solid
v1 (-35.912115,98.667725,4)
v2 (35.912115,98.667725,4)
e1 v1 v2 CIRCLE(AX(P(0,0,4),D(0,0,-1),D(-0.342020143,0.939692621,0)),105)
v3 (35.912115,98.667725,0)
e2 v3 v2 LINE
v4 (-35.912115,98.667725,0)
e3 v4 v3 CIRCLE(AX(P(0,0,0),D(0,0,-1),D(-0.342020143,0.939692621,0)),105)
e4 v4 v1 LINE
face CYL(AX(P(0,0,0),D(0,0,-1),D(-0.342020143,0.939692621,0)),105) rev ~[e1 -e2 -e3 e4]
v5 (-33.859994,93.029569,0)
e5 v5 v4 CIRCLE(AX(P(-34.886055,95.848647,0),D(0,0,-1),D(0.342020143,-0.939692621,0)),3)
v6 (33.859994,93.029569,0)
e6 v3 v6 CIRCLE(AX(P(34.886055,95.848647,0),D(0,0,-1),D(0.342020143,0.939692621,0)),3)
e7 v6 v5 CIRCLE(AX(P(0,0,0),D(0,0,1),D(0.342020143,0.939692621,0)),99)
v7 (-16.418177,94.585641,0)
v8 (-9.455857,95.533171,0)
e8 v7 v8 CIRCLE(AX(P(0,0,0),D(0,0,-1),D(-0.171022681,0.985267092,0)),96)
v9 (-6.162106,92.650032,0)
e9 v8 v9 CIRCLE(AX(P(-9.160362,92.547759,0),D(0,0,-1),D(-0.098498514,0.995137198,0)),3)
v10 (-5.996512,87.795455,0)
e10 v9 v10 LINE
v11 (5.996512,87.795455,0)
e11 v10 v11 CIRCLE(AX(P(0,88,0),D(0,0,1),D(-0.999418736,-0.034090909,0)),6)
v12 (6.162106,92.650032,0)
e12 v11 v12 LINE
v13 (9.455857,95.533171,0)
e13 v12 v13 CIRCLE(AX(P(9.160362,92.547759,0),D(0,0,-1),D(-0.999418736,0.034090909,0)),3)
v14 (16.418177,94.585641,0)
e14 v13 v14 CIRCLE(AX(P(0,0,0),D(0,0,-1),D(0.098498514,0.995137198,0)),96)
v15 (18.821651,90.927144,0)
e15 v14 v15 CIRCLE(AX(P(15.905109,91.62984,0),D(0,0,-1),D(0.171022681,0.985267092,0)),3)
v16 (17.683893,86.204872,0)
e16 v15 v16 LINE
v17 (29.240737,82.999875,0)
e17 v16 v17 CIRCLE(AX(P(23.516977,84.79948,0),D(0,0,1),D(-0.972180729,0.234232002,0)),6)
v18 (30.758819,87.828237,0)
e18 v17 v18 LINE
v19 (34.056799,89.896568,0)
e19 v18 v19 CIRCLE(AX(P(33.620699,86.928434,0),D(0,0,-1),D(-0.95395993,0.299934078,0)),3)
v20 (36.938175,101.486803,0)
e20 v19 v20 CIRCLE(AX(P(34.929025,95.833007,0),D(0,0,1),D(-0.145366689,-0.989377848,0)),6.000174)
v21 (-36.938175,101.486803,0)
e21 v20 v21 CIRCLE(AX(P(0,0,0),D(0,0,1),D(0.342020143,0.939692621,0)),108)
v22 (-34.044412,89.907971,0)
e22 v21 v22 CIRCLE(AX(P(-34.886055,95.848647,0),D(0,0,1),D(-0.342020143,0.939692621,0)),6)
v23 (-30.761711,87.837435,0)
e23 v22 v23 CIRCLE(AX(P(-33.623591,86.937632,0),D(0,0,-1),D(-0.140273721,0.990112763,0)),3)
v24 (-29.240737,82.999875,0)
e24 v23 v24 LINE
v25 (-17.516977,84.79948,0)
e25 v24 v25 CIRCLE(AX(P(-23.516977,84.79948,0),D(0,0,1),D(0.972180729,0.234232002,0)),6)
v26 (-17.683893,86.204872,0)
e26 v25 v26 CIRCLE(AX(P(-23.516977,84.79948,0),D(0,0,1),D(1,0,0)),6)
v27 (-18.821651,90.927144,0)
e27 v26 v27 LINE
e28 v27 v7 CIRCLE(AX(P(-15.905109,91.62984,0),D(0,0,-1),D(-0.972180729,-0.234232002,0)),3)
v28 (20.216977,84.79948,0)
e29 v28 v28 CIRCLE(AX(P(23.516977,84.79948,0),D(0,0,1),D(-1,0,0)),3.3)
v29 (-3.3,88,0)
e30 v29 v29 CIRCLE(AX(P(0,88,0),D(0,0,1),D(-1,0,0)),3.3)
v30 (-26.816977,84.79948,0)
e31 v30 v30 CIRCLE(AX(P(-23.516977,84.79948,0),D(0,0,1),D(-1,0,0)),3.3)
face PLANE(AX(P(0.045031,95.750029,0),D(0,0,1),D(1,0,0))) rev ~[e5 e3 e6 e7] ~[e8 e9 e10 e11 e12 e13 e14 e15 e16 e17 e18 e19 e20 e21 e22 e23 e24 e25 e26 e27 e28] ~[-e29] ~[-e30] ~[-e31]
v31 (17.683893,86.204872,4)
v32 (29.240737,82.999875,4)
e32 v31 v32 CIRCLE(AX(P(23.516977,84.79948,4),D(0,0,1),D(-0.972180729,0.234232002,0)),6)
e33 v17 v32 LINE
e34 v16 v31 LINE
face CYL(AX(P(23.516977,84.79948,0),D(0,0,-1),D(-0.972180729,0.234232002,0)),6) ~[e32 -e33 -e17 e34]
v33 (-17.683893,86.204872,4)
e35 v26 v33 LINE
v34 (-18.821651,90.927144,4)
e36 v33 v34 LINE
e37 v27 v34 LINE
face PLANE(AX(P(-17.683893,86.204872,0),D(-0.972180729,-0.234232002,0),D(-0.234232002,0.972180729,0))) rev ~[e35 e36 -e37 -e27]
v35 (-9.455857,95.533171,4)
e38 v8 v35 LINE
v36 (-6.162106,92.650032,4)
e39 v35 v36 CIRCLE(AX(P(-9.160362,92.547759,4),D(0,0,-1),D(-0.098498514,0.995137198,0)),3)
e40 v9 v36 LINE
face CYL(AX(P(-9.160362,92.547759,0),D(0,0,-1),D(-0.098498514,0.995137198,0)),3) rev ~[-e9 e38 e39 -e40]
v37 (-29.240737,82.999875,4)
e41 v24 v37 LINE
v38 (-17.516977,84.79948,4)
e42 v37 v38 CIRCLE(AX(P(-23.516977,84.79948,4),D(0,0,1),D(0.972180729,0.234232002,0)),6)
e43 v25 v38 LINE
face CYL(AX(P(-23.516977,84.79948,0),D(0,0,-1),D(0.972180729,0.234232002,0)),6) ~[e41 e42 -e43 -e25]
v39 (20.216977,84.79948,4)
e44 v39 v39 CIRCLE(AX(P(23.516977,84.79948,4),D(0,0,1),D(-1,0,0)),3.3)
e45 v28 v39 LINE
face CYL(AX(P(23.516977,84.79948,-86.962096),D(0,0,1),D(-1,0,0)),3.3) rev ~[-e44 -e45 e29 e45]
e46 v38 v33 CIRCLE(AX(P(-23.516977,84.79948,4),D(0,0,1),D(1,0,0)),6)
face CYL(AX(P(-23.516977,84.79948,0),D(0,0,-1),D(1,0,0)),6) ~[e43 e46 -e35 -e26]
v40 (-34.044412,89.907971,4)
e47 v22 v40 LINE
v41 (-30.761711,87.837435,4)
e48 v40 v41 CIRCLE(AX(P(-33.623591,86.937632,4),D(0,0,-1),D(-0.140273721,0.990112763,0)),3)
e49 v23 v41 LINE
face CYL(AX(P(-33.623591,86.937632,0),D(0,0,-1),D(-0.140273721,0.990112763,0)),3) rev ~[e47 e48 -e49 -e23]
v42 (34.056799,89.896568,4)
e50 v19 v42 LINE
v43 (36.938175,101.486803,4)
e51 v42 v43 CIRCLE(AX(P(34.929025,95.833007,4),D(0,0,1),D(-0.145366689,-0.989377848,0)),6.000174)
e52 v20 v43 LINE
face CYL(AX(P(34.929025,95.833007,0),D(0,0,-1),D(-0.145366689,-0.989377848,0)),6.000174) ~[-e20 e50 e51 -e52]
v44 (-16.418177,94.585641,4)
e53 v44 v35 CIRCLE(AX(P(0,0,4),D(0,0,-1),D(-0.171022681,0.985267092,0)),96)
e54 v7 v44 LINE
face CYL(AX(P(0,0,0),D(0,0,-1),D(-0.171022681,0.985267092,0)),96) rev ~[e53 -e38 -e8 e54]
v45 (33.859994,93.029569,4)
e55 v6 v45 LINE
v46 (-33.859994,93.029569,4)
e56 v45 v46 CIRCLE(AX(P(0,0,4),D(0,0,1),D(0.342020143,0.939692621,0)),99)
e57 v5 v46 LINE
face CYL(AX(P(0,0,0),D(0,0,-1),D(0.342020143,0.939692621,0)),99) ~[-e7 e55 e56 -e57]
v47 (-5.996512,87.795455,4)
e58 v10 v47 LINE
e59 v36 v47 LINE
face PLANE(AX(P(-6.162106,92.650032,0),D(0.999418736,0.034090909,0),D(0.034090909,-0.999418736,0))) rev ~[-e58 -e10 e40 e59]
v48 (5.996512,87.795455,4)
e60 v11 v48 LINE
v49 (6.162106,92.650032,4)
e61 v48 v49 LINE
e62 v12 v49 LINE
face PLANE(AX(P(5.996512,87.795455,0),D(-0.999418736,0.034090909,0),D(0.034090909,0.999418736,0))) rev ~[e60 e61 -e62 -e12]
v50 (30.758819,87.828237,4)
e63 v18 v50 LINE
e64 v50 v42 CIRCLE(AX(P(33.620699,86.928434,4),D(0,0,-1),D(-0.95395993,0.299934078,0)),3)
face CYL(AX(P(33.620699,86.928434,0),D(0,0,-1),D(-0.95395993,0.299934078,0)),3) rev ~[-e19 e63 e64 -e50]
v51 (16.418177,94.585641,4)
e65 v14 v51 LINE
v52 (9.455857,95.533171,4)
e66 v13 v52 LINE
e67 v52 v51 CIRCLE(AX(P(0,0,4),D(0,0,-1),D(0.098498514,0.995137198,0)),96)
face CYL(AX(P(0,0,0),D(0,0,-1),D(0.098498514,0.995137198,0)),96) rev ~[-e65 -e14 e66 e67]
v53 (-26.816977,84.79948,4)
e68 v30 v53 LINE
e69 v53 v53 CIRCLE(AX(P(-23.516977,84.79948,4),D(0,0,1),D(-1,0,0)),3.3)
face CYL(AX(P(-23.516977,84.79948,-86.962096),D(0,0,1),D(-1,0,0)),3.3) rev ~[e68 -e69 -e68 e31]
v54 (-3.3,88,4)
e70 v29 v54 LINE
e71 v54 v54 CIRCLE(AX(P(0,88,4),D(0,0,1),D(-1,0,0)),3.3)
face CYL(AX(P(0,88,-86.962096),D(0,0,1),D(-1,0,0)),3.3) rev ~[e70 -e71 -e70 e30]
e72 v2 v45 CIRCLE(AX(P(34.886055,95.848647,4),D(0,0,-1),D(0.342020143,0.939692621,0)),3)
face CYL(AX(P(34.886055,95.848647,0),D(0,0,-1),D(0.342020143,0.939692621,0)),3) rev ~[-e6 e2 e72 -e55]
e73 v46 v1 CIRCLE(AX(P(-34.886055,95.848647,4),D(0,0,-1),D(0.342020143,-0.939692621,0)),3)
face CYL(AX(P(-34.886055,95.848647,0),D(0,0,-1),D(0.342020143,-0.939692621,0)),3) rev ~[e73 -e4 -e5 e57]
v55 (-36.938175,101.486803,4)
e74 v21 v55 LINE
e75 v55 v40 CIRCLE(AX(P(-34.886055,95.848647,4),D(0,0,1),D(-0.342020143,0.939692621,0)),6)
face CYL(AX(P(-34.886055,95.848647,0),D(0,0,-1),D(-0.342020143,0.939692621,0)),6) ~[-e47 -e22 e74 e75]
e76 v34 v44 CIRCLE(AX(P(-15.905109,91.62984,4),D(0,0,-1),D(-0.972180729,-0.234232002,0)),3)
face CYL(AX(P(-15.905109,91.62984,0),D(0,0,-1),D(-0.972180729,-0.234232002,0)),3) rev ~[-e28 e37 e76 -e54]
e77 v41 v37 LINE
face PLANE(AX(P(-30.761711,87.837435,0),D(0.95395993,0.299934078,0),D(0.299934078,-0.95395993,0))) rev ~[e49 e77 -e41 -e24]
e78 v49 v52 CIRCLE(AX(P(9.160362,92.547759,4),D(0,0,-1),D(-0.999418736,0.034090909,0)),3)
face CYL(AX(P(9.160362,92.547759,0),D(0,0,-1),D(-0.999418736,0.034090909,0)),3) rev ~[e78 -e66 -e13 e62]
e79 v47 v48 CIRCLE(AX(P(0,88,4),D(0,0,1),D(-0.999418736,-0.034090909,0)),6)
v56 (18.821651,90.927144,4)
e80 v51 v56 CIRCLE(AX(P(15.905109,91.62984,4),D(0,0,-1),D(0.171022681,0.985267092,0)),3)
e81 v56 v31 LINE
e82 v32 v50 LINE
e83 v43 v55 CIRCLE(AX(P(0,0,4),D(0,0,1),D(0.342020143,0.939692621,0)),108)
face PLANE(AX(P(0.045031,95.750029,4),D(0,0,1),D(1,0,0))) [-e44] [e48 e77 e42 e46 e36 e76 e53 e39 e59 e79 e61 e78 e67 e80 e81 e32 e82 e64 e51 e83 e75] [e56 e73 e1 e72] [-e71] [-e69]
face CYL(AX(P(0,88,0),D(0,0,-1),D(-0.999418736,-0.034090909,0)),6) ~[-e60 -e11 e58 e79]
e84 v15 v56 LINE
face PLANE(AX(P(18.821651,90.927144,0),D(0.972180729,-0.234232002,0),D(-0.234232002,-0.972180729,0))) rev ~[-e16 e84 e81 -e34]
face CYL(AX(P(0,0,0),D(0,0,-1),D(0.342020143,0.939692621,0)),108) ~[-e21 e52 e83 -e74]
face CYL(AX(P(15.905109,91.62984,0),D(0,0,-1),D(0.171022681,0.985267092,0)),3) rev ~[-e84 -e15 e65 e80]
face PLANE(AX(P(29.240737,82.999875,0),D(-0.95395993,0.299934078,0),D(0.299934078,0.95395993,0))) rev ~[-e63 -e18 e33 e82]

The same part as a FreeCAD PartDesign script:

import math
import FreeCAD as App
import Part
import Sketcher

V = App.Vector
Q = App.Units.Quantity

doc = App.newDocument("Part")
body = doc.addObject("PartDesign::Body", "Body")

# Sketch on XY plane
sketch1 = doc.addObject("Sketcher::SketchObject", "Sketch")
body.addObject(sketch1)
sketch1.AttachmentSupport = (doc.XY_Plane, [""])
sketch1.MapMode = "FlatFace"
sketch1.addGeometry([
    Part.ArcOfCircle(Part.Circle(V(34.9, 95.8, 0), V(0, 0, 1), 6), math.radians(-98), math.radians(70)),  # 0
    Part.ArcOfCircle(Part.Circle(V(0, 0, 0), V(0, 0, 1), 108), math.radians(70), math.radians(110)),  # 1
    Part.ArcOfCircle(Part.Circle(V(-34.9, 95.8, 0), V(0, 0, 1), 6), math.radians(110), math.radians(278)),  # 2
    Part.ArcOfCircle(Part.Circle(V(-33.6, 86.9, 0), V(0, 0, 1), 3), math.radians(17), math.radians(98)),  # 3
    Part.LineSegment(V(-30.8, 87.8, 0), V(-29.2, 83, 0)),  # 4
    Part.ArcOfCircle(Part.Circle(V(-23.5, 84.8, 0), V(0, 0, 1), 6), math.radians(-163), math.radians(0)),  # 5
    Part.ArcOfCircle(Part.Circle(V(-23.5, 84.8, 0), V(0, 0, 1), 6), math.radians(0), math.radians(13.55)),  # 6
    Part.LineSegment(V(-17.7, 86.2, 0), V(-18.8, 90.9, 0)),  # 7
    Part.ArcOfCircle(Part.Circle(V(-15.9, 91.6, 0), V(0, 0, 1), 3), math.radians(100), math.radians(194)),  # 8
    Part.ArcOfCircle(Part.Circle(V(0, 0, 0), V(0, 0, 1), 96), math.radians(95.65), math.radians(99.85)),  # 9
    Part.ArcOfCircle(Part.Circle(V(-9.2, 92.5, 0), V(0, 0, 1), 3), math.radians(2), math.radians(96)),  # 10
    Part.LineSegment(V(-6.2, 92.7, 0), V(-6, 87.8, 0)),  # 11
    Part.ArcOfCircle(Part.Circle(V(0, 88, 0), V(0, 0, 1), 6), math.radians(-178), math.radians(-2)),  # 12
    Part.LineSegment(V(6, 87.8, 0), V(6.2, 92.7, 0)),  # 13
    Part.ArcOfCircle(Part.Circle(V(9.2, 92.5, 0), V(0, 0, 1), 3), math.radians(84), math.radians(178)),  # 14
    Part.ArcOfCircle(Part.Circle(V(0, 0, 0), V(0, 0, 1), 96), math.radians(80.15), math.radians(84.35)),  # 15
    Part.ArcOfCircle(Part.Circle(V(15.9, 91.6, 0), V(0, 0, 1), 3), math.radians(-14), math.radians(80)),  # 16
    Part.LineSegment(V(18.8, 90.9, 0), V(17.7, 86.2, 0)),  # 17
    Part.ArcOfCircle(Part.Circle(V(23.5, 84.8, 0), V(0, 0, 1), 6), math.radians(166), math.radians(343)),  # 18
    Part.LineSegment(V(29.2, 83, 0), V(30.8, 87.8, 0)),  # 19
    Part.ArcOfCircle(Part.Circle(V(33.6, 86.9, 0), V(0, 0, 1), 3), math.radians(82), math.radians(163)),  # 20
    Part.ArcOfCircle(Part.Circle(V(-34.9, 95.8, 0), V(0, 0, 1), 3), math.radians(110), math.radians(290)),  # 21
    Part.ArcOfCircle(Part.Circle(V(0, 0, 0), V(0, 0, 1), 105), math.radians(70), math.radians(110)),  # 22
    Part.ArcOfCircle(Part.Circle(V(34.9, 95.8, 0), V(0, 0, 1), 3), math.radians(-110), math.radians(70)),  # 23
    Part.ArcOfCircle(Part.Circle(V(0, 0, 0), V(0, 0, 1), 99), math.radians(70), math.radians(110)),  # 24
], False)
sketch1.addConstraint([
    Sketcher.Constraint("Coincident", 0, 2, 1, 1),
    Sketcher.Constraint("Tangent", 1, 2, 2, 1),
    Sketcher.Constraint("Tangent", 2, 2, 3, 2),
    Sketcher.Constraint("Tangent", 3, 1, 4, 1),
    Sketcher.Constraint("Tangent", 4, 2, 5, 1),
    Sketcher.Constraint("Tangent", 5, 2, 6, 1),
    Sketcher.Constraint("Tangent", 6, 2, 7, 1),
    Sketcher.Constraint("Tangent", 7, 2, 8, 2),
    Sketcher.Constraint("Tangent", 8, 1, 9, 2),
    Sketcher.Constraint("Tangent", 9, 1, 10, 2),
    Sketcher.Constraint("Tangent", 10, 1, 11, 1),
    Sketcher.Constraint("Tangent", 11, 2, 12, 1),
    Sketcher.Constraint("Tangent", 12, 2, 13, 1),
    Sketcher.Constraint("Tangent", 13, 2, 14, 2),
    Sketcher.Constraint("Tangent", 14, 1, 15, 2),
    Sketcher.Constraint("Tangent", 15, 1, 16, 2),
    Sketcher.Constraint("Tangent", 16, 1, 17, 1),
    Sketcher.Constraint("Tangent", 17, 2, 18, 1),
    Sketcher.Constraint("Tangent", 18, 2, 19, 1),
    Sketcher.Constraint("Tangent", 19, 2, 20, 2),
    Sketcher.Constraint("Tangent", 20, 1, 0, 1),
    Sketcher.Constraint("Tangent", 21, 1, 22, 2),
    Sketcher.Constraint("Tangent", 22, 1, 23, 2),
    Sketcher.Constraint("Tangent", 23, 1, 24, 1),
    Sketcher.Constraint("Tangent", 24, 2, 21, 2),
    Sketcher.Constraint("Coincident", 1, 3, -1, 1),
    Sketcher.Constraint("Coincident", 9, 3, -1, 1),
    Sketcher.Constraint("Coincident", 15, 3, -1, 1),
    Sketcher.Constraint("Coincident", 22, 3, -1, 1),
    Sketcher.Constraint("Coincident", 24, 3, -1, 1),
    Sketcher.Constraint("Coincident", 21, 3, 2, 3),
    Sketcher.Constraint("Equal", 2, 5),
    Sketcher.Constraint("Equal", 5, 6),
    Sketcher.Constraint("Equal", 3, 8),
    Sketcher.Constraint("Equal", 8, 10),
    Sketcher.Constraint("Equal", 6, 12),
    Sketcher.Constraint("Equal", 10, 14),
    Sketcher.Constraint("Equal", 9, 15),
    Sketcher.Constraint("Equal", 14, 16),
    Sketcher.Constraint("Equal", 12, 18),
    Sketcher.Constraint("Equal", 16, 20),
    Sketcher.Constraint("Equal", 20, 21),
    Sketcher.Constraint("Symmetric", 5, 3, 18, 3, -2),
    Sketcher.Constraint("Symmetric", 11, 2, 12, 2, -2),
    Sketcher.Constraint("Horizontal", 8, 3, 16, 3),
    Sketcher.Constraint("Horizontal", 21, 3, 23, 3),
    Sketcher.Constraint("Horizontal", 0, 2, 1, 2),
    Sketcher.Constraint("Horizontal", 18, 3, 5, 2),
    Sketcher.Constraint("Horizontal", 4, 2, 18, 2),
    Sketcher.Constraint("Equal", 7, 11),
    Sketcher.Constraint("Radius", 1, Q("108 mm")),
    Sketcher.Constraint("Radius", 2, Q("6 mm")),
    Sketcher.Constraint("Radius", 3, Q("3 mm")),
    Sketcher.Constraint("Radius", 9, Q("96 mm")),
    Sketcher.Constraint("DistanceY", -1, 1, 12, 3, Q("88 mm")),
    Sketcher.Constraint("Radius", 0, Q("6.000174 mm")),
    Sketcher.Constraint("DistanceX", 5, 3, 0, 3, Q("58.446002 mm")),
    Sketcher.Constraint("DistanceY", 20, 1, 23, 1, Q("3.133001 mm")),
    Sketcher.Constraint("Distance", 7, Q("4.857401 mm")),
    Sketcher.Constraint("DistanceX", -1, 1, 20, 3, Q("33.620699 mm")),
    Sketcher.Constraint("DistanceX", -1, 1, 20, 1, Q("34.056799 mm")),
    Sketcher.Constraint("DistanceX", 2, 2, 3, 1, Q("3.282701 mm")),
])
pad1 = doc.addObject("PartDesign::Pad", "Pad")
body.addObject(pad1)
pad1.Profile = sketch1
pad1.Length = 4

# Sketch on XY plane
sketch2 = doc.addObject("Sketcher::SketchObject", "Sketch001")
body.addObject(sketch2)
sketch2.AttachmentSupport = (doc.XY_Plane, [""])
sketch2.MapMode = "FlatFace"
sketch2.addGeometry([
    Part.Circle(V(-23.5, 84.8, 0), V(0, 0, 1), 3.3),
    Part.Circle(V(0, 88, 0), V(0, 0, 1), 3.3),
    Part.Circle(V(23.5, 84.8, 0), V(0, 0, 1), 3.3),
], False)
sketch2.addConstraint([
    Sketcher.Constraint("Equal", 0, 1),
    Sketcher.Constraint("Equal", 1, 2),
    Sketcher.Constraint("Symmetric", 0, 3, 2, 3, -2),
    Sketcher.Constraint("PointOnObject", 1, 3, -2),
    Sketcher.Constraint("Diameter", 0, Q("6.6 mm")),
    Sketcher.Constraint("DistanceY", -1, 1, 1, 3, Q("88 mm")),
    Sketcher.Constraint("DistanceY", -1, 1, 0, 3, Q("84.79948 mm")),
    Sketcher.Constraint("DistanceX", 0, 3, -1, 1, Q("23.516977 mm")),
])
doc.recompute()
hole = doc.addObject("PartDesign::Hole", "Hole")
body.addObject(hole)
hole.Profile = sketch2
hole.ThreadType = "None"
hole.Diameter = 6.6
hole.DepthType = "ThroughAll"
hole.Reversed = True

doc.recompute()
